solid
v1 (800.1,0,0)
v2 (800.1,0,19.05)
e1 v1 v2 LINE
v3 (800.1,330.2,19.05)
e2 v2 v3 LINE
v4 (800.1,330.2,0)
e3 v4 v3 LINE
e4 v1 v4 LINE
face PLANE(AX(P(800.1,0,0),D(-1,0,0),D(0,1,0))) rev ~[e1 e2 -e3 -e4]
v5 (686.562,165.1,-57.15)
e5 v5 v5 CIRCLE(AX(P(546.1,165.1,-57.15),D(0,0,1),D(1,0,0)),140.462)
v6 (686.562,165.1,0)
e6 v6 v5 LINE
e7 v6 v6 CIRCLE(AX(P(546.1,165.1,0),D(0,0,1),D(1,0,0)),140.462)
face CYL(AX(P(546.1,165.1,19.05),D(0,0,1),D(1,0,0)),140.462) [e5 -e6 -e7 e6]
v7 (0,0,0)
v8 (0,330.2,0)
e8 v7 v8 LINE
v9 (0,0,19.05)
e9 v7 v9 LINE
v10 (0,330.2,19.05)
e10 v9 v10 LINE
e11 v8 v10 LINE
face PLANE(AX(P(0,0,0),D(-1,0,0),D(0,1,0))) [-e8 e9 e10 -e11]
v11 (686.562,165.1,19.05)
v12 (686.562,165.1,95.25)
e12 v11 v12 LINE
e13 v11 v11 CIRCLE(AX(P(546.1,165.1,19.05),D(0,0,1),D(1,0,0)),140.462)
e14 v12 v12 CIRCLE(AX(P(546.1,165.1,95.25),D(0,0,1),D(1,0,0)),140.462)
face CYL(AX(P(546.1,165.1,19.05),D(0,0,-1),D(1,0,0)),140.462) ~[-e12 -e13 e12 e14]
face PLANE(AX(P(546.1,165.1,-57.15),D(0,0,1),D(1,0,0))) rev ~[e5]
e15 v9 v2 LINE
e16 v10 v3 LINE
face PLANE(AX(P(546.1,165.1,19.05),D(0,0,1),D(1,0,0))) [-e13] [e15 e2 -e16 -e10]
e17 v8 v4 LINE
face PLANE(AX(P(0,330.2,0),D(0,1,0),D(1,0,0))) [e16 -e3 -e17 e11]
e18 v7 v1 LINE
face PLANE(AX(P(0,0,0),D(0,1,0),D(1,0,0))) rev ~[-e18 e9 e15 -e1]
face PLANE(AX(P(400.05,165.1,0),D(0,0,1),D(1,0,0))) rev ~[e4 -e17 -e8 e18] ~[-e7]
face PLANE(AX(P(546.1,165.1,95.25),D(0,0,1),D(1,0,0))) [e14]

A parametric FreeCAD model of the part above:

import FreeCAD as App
import Part
import Sketcher

V = App.Vector
Q = App.Units.Quantity


def add_polygon(sketch, points):
    """Adds a closed chain of lines whose ends are joined by coincident constraints."""
    first, n = sketch.GeometryCount, len(points)
    for a, b in zip(points, points[1:] + points[:1]):
        sketch.addGeometry(Part.LineSegment(App.Vector(*a, 0), App.Vector(*b, 0)), False)
    for i in range(n):
        sketch.addConstraint(Sketcher.Constraint("Coincident", first + i, 2, first + (i + 1) % n, 1))

doc = App.newDocument("Part")
body = doc.addObject("PartDesign::Body", "Body")

# Sketch on XY plane
sketch1 = doc.addObject("Sketcher::SketchObject", "Sketch")
body.addObject(sketch1)
sketch1.AttachmentSupport = (doc.XY_Plane, [""])
sketch1.MapMode = "FlatFace"
add_polygon(sketch1, [(0, 330), (0, 0), (800, 0), (800, 330)])  # lines 0-3
sketch1.addConstraint([
    Sketcher.Constraint("Vertical", 0),
    Sketcher.Constraint("Horizontal", 1),
    Sketcher.Constraint("Vertical", 2),
    Sketcher.Constraint("Horizontal", 3),
    Sketcher.Constraint("Coincident", 0, 2, -1, 1),
    Sketcher.Constraint("DistanceY", 0, 2, 0, 1, Q("13 in")),
    Sketcher.Constraint("DistanceX", 1, 1, 1, 2, Q("31.5 in")),
])
pad1 = doc.addObject("PartDesign::Pad", "Pad")
body.addObject(pad1)
pad1.Profile = sketch1
pad1.Length = Q("0.75 in")

# Sketch on XY plane
sketch2 = doc.addObject("Sketcher::SketchObject", "Sketch001")
body.addObject(sketch2)
sketch2.AttachmentSupport = (doc.XY_Plane, [""])
sketch2.MapMode = "FlatFace"
sketch2.AttachmentOffset = App.Placement(V(0, 0, 0.75 * 25.4), App.Rotation())
sketch2.addGeometry(Part.Circle(V(546, 165, 0), V(0, 0, 1), 140), False)
sketch2.addConstraint([
    Sketcher.Constraint("Diameter", 0, Q("11.06 in")),
    Sketcher.Constraint("DistanceX", -1, 1, 0, 3, Q("21.5 in")),
    Sketcher.Constraint("DistanceY", -1, 1, 0, 3, Q("6.5 in")),
])
pad2 = doc.addObject("PartDesign::Pad", "Pad001")
body.addObject(pad2)
pad2.Profile = sketch2
pad2.Type = "TwoLengths"
pad2.Length = Q("3 in")
pad2.Length2 = Q("3 in")
pad2.Reversed = True

doc.recompute()
